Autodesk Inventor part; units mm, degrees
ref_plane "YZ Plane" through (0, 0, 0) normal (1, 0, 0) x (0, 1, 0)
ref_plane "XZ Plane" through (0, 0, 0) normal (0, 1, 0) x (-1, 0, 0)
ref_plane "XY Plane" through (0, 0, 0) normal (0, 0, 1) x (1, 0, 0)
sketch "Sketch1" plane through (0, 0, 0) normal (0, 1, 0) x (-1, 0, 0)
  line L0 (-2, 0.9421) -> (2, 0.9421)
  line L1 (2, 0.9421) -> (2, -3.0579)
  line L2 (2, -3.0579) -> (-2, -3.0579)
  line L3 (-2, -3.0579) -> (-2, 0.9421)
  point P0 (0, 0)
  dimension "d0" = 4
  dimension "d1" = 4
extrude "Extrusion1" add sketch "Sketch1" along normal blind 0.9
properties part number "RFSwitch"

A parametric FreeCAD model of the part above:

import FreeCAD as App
import Part
import Sketcher

V = App.Vector
Q = App.Units.Quantity

doc = App.newDocument("Part")
body = doc.addObject("PartDesign::Body", "Body")

# Sketch on XZ plane
sketch1 = body.newObject("Sketcher::SketchObject", "Sketch")
sketch1.AttachmentSupport = (doc.getObject("XZ_Plane"), [""])
sketch1.MapMode = "FlatFace"
sketch1.addGeometry([
    Part.LineSegment(V(-2, 0.9, 0), V(2, 0.9, 0)),
    Part.LineSegment(V(2, 0.9, 0), V(2, -3.1, 0)),
    Part.LineSegment(V(2, -3.1, 0), V(-2, -3.1, 0)),
    Part.LineSegment(V(-2, -3.1, 0), V(-2, 0.9, 0)),
], False)
sketch1.addConstraint([
    Sketcher.Constraint("Coincident", 0, 2, 1, 1),
    Sketcher.Constraint("Coincident", 1, 2, 2, 1),
    Sketcher.Constraint("Coincident", 2, 2, 3, 1),
    Sketcher.Constraint("Coincident", 3, 2, 0, 1),
    Sketcher.Constraint("Horizontal", 0),
    Sketcher.Constraint("Vertical", 1),
    Sketcher.Constraint("Horizontal", 2),
    Sketcher.Constraint("Vertical", 3),
    Sketcher.Constraint("Equal", 2, 1),
    Sketcher.Constraint("DistanceX", 0, 1, 0, 2, Q("4 mm")),
    Sketcher.Constraint("DistanceX", -1, 1, 0, 2, Q("2 mm")),
    Sketcher.Constraint("DistanceY", -1, 1, 0, 2, Q("0.942 mm")),
])
pad1 = body.newObject("PartDesign::Pad", "Pad")
pad1.Profile = sketch1
pad1.Length = 0.9
pad1.Reversed = True

doc.recompute()
